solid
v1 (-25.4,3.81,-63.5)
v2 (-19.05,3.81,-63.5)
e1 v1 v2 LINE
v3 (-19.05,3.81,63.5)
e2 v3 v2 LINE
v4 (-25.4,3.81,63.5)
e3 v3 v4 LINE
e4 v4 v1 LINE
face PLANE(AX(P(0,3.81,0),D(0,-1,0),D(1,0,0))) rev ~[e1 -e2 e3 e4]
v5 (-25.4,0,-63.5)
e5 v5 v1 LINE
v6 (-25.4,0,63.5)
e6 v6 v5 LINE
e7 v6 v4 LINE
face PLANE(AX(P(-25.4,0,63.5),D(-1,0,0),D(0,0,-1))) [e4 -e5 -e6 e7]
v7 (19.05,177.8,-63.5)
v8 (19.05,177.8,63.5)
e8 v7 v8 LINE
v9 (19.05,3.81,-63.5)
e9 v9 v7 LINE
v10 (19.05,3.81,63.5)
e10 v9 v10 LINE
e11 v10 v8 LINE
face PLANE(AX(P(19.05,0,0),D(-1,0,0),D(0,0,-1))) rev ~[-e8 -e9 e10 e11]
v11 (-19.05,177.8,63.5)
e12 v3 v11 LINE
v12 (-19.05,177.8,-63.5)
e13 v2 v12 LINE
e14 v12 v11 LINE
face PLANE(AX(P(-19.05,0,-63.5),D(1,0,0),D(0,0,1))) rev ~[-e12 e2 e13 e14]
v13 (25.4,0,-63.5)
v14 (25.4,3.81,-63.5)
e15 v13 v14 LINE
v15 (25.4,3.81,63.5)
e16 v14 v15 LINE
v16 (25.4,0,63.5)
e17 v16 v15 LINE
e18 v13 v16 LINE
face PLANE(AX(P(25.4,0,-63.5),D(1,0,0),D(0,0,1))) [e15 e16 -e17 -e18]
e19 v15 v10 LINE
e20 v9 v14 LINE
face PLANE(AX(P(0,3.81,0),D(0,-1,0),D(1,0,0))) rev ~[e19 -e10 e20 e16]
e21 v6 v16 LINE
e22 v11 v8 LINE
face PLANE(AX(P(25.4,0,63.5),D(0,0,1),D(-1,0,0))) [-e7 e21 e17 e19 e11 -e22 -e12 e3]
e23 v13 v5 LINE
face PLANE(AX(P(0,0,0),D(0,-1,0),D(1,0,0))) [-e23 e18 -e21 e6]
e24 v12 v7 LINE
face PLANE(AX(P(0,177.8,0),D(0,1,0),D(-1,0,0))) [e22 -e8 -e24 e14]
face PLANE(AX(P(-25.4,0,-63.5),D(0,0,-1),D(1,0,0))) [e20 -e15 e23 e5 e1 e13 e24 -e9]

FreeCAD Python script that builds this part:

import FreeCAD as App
import Part
import Sketcher
Q = App.Units.Quantity

doc = App.newDocument("Part")
body = doc.addObject("PartDesign::Body", "Body")

sketch1 = body.newObject("Sketcher::SketchObject", "Sketch")
sketch1.AttachmentSupport = (doc.getObject("XZ_Plane"), [""])
sketch1.MapMode = "FlatFace"
sketch1.addGeometry(Part.LineSegment(App.Vector(19.05, -63.5, 0), App.Vector(-19.05, -63.5, 0)), False)
sketch1.addGeometry(Part.LineSegment(App.Vector(-19.05, -63.5, 0), App.Vector(-19.05, 63.5, 0)), False)
sketch1.addGeometry(Part.LineSegment(App.Vector(-19.05, 63.5, 0), App.Vector(19.05, 63.5, 0)), False)
sketch1.addGeometry(Part.LineSegment(App.Vector(19.05, 63.5, 0), App.Vector(19.05, -63.5, 0)), False)
sketch1.addConstraint(Sketcher.Constraint("Coincident", 0, 2, 1, 1))
sketch1.addConstraint(Sketcher.Constraint("Coincident", 1, 2, 2, 1))
sketch1.addConstraint(Sketcher.Constraint("Coincident", 2, 2, 3, 1))
sketch1.addConstraint(Sketcher.Constraint("Coincident", 3, 2, 0, 1))
sketch1.addConstraint(Sketcher.Constraint("Horizontal", 0))
sketch1.addConstraint(Sketcher.Constraint("Vertical", 1))
sketch1.addConstraint(Sketcher.Constraint("Horizontal", 2))
sketch1.addConstraint(Sketcher.Constraint("Vertical", 3))
sketch1.addConstraint(Sketcher.Constraint("Symmetric", 0, 2, 2, 2, -1, 1))
sketch1.addConstraint(Sketcher.Constraint("DistanceY", 1, 1, 1, 2, Q("5 in")))
sketch1.addConstraint(Sketcher.Constraint("DistanceX", 0, 2, 0, 1, Q("1.5 in")))
pad1 = body.newObject("PartDesign::Pad", "Pad")
pad1.Profile = sketch1
pad1.Length = Q("7 in")
pad1.Reversed = True

sketch2 = body.newObject("Sketcher::SketchObject", "Sketch001")
sketch2.AttachmentSupport = (doc.getObject("XZ_Plane"), [""])
sketch2.MapMode = "FlatFace"
sketch2.addGeometry(Part.LineSegment(App.Vector(-25.4, 63.5, 0), App.Vector(-25.4, -63.5, 0)), False)
sketch2.addGeometry(Part.LineSegment(App.Vector(-25.4, -63.5, 0), App.Vector(25.4, -63.5, 0)), False)
sketch2.addGeometry(Part.LineSegment(App.Vector(25.4, -63.5, 0), App.Vector(25.4, 63.5, 0)), False)
sketch2.addGeometry(Part.LineSegment(App.Vector(25.4, 63.5, 0), App.Vector(-25.4, 63.5, 0)), False)
sketch2.addConstraint(Sketcher.Constraint("Coincident", 0, 2, 1, 1))
sketch2.addConstraint(Sketcher.Constraint("Coincident", 1, 2, 2, 1))
sketch2.addConstraint(Sketcher.Constraint("Coincident", 2, 2, 3, 1))
sketch2.addConstraint(Sketcher.Constraint("Coincident", 3, 2, 0, 1))
sketch2.addConstraint(Sketcher.Constraint("Vertical", 0))
sketch2.addConstraint(Sketcher.Constraint("Horizontal", 1))
sketch2.addConstraint(Sketcher.Constraint("Vertical", 2))
sketch2.addConstraint(Sketcher.Constraint("Horizontal", 3))
sketch2.addConstraint(Sketcher.Constraint("Symmetric", 0, 2, 2, 2, -1, 1))
sketch2.addConstraint(Sketcher.Constraint("DistanceX", 1, 1, 1, 2, Q("2 in")))
sketch2.addConstraint(Sketcher.Constraint("DistanceY", 0, 2, 0, 1, Q("5 in")))
pad2 = body.newObject("PartDesign::Pad", "Pad001")
pad2.Profile = sketch2
pad2.Length = Q("0.15 in")
pad2.Reversed = True

doc.recompute()
